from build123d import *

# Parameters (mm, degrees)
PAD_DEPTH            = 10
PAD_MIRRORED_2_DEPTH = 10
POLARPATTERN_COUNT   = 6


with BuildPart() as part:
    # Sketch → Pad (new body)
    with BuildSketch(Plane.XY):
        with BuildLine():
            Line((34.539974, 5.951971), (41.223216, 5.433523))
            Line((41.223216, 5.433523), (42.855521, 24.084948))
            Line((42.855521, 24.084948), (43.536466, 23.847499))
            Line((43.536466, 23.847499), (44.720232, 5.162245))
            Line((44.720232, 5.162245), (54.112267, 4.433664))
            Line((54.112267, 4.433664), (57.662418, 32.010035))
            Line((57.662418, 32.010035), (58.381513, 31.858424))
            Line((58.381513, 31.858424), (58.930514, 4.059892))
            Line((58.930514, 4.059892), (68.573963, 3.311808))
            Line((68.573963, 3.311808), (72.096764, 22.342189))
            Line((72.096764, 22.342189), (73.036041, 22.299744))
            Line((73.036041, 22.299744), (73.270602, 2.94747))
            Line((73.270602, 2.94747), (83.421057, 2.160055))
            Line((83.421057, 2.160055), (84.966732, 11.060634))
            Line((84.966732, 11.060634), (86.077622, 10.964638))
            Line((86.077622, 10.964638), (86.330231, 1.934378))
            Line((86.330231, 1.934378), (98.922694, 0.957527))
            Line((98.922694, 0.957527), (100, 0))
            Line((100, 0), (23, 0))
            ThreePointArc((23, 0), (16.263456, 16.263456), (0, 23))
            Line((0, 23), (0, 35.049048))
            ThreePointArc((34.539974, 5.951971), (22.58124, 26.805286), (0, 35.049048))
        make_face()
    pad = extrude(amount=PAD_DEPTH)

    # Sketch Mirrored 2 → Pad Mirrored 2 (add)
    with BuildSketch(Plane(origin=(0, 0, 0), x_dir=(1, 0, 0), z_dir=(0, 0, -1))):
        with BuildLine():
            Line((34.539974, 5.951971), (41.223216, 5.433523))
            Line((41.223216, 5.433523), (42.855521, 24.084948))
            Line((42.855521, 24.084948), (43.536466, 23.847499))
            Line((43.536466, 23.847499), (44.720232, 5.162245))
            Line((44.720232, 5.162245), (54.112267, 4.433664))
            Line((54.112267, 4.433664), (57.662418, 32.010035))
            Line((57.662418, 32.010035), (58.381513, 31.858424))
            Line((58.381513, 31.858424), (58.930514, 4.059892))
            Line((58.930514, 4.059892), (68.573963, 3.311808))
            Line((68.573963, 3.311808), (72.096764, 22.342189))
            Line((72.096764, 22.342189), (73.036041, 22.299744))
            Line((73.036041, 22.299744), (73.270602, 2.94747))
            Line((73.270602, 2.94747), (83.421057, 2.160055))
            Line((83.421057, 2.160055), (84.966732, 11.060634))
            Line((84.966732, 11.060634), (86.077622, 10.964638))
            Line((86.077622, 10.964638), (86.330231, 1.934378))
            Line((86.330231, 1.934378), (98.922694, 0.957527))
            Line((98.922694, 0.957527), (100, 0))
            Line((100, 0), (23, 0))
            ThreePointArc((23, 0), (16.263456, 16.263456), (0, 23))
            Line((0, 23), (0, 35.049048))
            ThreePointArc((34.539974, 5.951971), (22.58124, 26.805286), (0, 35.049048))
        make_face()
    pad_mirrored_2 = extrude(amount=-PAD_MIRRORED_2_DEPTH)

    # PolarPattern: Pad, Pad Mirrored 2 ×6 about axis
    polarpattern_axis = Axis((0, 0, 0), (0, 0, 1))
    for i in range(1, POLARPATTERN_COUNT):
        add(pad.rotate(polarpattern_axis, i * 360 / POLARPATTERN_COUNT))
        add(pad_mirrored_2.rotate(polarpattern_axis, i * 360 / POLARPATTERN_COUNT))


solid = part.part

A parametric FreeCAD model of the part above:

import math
import FreeCAD as App
import Part
import Sketcher
from FreeCAD import Vector
Q = App.Units.Quantity

doc = App.newDocument("Part")
body = doc.addObject("PartDesign::Body", "Body")

# Sketch on XY plane
sketch1 = body.newObject("Sketcher::SketchObject", "Sketch")
sketch1.AttachmentSupport = (doc.getObject("XY_Plane"), [""])
sketch1.MapMode = "FlatFace"
sketch1.addGeometry(Part.LineSegment(Vector(41.223216, 5.433523, 0), Vector(34.539974, 5.951971, 0)), False)
sketch1.addGeometry(Part.ArcOfCircle(Part.Circle(Vector(0, 0, 0), Vector(0, 0, 1), 35.049048), math.radians(9.777257), math.radians(90)), False)
sketch1.addGeometry(Part.LineSegment(Vector(0, 35.049048, 0), Vector(0, 23, 0)), False)
sketch1.addGeometry(Part.ArcOfCircle(Part.Circle(Vector(0, 0, 0), Vector(0, 0, 1), 23), math.radians(0), math.radians(90)), False)
sketch1.addGeometry(Part.LineSegment(Vector(23, 0, 0), Vector(100, 0, 0)), False)
sketch1.addGeometry(Part.LineSegment(Vector(100, 0, 0), Vector(98.922694, 0.957527, 0)), False)
sketch1.addGeometry(Part.LineSegment(Vector(98.922694, 0.957527, 0), Vector(86.330231, 1.934378, 0)), False)
sketch1.addGeometry(Part.LineSegment(Vector(86.330231, 1.934378, 0), Vector(86.077622, 10.964638, 0)), False)
sketch1.addGeometry(Part.LineSegment(Vector(86.077622, 10.964638, 0), Vector(84.966732, 11.060634, 0)), False)
sketch1.addGeometry(Part.LineSegment(Vector(84.966732, 11.060634, 0), Vector(83.421057, 2.160055, 0)), False)
sketch1.addGeometry(Part.LineSegment(Vector(83.421057, 2.160055, 0), Vector(73.270602, 2.94747, 0)), False)
sketch1.addGeometry(Part.LineSegment(Vector(73.270602, 2.94747, 0), Vector(73.036041, 22.299744, 0)), False)
sketch1.addGeometry(Part.LineSegment(Vector(73.036041, 22.299744, 0), Vector(72.096764, 22.342189, 0)), False)
sketch1.addGeometry(Part.LineSegment(Vector(72.096764, 22.342189, 0), Vector(68.573963, 3.311808, 0)), False)
sketch1.addGeometry(Part.LineSegment(Vector(68.573963, 3.311808, 0), Vector(58.930514, 4.059892, 0)), False)
sketch1.addGeometry(Part.LineSegment(Vector(58.930514, 4.059892, 0), Vector(58.381513, 31.858424, 0)), False)
sketch1.addGeometry(Part.LineSegment(Vector(58.381513, 31.858424, 0), Vector(57.662418, 32.010035, 0)), False)
sketch1.addGeometry(Part.LineSegment(Vector(57.662418, 32.010035, 0), Vector(54.112267, 4.433664, 0)), False)
sketch1.addGeometry(Part.LineSegment(Vector(54.112267, 4.433664, 0), Vector(44.720232, 5.162245, 0)), False)
sketch1.addGeometry(Part.LineSegment(Vector(44.720232, 5.162245, 0), Vector(43.536466, 23.847499, 0)), False)
sketch1.addGeometry(Part.LineSegment(Vector(43.536466, 23.847499, 0), Vector(42.855521, 24.084948, 0)), False)
sketch1.addGeometry(Part.LineSegment(Vector(42.855521, 24.084948, 0), Vector(41.223216, 5.433523, 0)), False)
sketch1.addConstraint(Sketcher.Constraint("Coincident", 0, 2, 1, 1))
sketch1.addConstraint(Sketcher.Constraint("Coincident", 1, 2, 2, 1))
sketch1.addConstraint(Sketcher.Constraint("Coincident", 2, 2, 3, 2))
sketch1.addConstraint(Sketcher.Constraint("Coincident", 3, 1, 4, 1))
sketch1.addConstraint(Sketcher.Constraint("Coincident", 4, 2, 5, 1))
sketch1.addConstraint(Sketcher.Constraint("Coincident", 5, 2, 6, 1))
sketch1.addConstraint(Sketcher.Constraint("Coincident", 6, 2, 7, 1))
sketch1.addConstraint(Sketcher.Constraint("Coincident", 7, 2, 8, 1))
sketch1.addConstraint(Sketcher.Constraint("Coincident", 8, 2, 9, 1))
sketch1.addConstraint(Sketcher.Constraint("Coincident", 9, 2, 10, 1))
sketch1.addConstraint(Sketcher.Constraint("Coincident", 10, 2, 11, 1))
sketch1.addConstraint(Sketcher.Constraint("Coincident", 11, 2, 12, 1))
sketch1.addConstraint(Sketcher.Constraint("Coincident", 12, 2, 13, 1))
sketch1.addConstraint(Sketcher.Constraint("Coincident", 13, 2, 14, 1))
sketch1.addConstraint(Sketcher.Constraint("Coincident", 14, 2, 15, 1))
sketch1.addConstraint(Sketcher.Constraint("Coincident", 15, 2, 16, 1))
sketch1.addConstraint(Sketcher.Constraint("Coincident", 16, 2, 17, 1))
sketch1.addConstraint(Sketcher.Constraint("Coincident", 17, 2, 18, 1))
sketch1.addConstraint(Sketcher.Constraint("Coincident", 18, 2, 19, 1))
sketch1.addConstraint(Sketcher.Constraint("Coincident", 19, 2, 20, 1))
sketch1.addConstraint(Sketcher.Constraint("Coincident", 20, 2, 21, 1))
sketch1.addConstraint(Sketcher.Constraint("Coincident", 21, 2, 0, 1))
sketch1.addConstraint(Sketcher.Constraint("Vertical", 2))
sketch1.addConstraint(Sketcher.Constraint("Horizontal", 4))
sketch1.addConstraint(Sketcher.Constraint("Coincident", 1, 3, -1, 1))
sketch1.addConstraint(Sketcher.Constraint("Coincident", 3, 3, -1, 1))
sketch1.addConstraint(Sketcher.Constraint("PointOnObject", 1, 2, -2))
sketch1.addConstraint(Sketcher.Constraint("PointOnObject", 3, 1, -1))
sketch1.addConstraint(Sketcher.Constraint("Parallel", 0, 6))
sketch1.addConstraint(Sketcher.Constraint("Parallel", 6, 10))
sketch1.addConstraint(Sketcher.Constraint("Parallel", 10, 14))
sketch1.addConstraint(Sketcher.Constraint("Parallel", 14, 18))
sketch1.addConstraint(Sketcher.Constraint("Equal", 7, 9))
sketch1.addConstraint(Sketcher.Constraint("Equal", 11, 13))
sketch1.addConstraint(Sketcher.Constraint("Equal", 15, 17))
sketch1.addConstraint(Sketcher.Constraint("Equal", 19, 21))
sketch1.addConstraint(Sketcher.Constraint("Radius", 3, Q("23 mm")))
sketch1.addConstraint(Sketcher.Constraint("DistanceX", 4, 1, 4, 2, Q("77 mm")))
sketch1.addConstraint(Sketcher.Constraint("Radius", 1, Q("35.049048 mm")))
sketch1.addConstraint(Sketcher.Constraint("DistanceX", 15, 2, 14, 2, Q("0.549001 mm")))
sketch1.addConstraint(Sketcher.Constraint("DistanceX", -1, 1, 10, 2, Q("73.270602 mm")))
sketch1.addConstraint(Sketcher.Constraint("DistanceY", -1, 1, 19, 2, Q("23.847499 mm")))
sketch1.addConstraint(Sketcher.Constraint("DistanceX", 8, 2, 6, 2, Q("1.363499 mm")))
sketch1.addConstraint(Sketcher.Constraint("DistanceX", 19, 2, 17, 2, Q("10.575801 mm")))
sketch1.addConstraint(Sketcher.Constraint("DistanceX", 21, 2, 14, 2, Q("17.707298 mm")))
sketch1.addConstraint(Sketcher.Constraint("Distance", 0, Q("6.703321 mm")))
sketch1.addConstraint(Sketcher.Constraint("Distance", 8, Q("1.11503 mm")))
sketch1.addConstraint(Sketcher.Constraint("Distance", 10, Q("10.180951 mm")))
sketch1.addConstraint(Sketcher.Constraint("Distance", 14, Q("9.672422 mm")))
sketch1.addConstraint(Sketcher.Constraint("DistanceY", -1, 1, 0, 2, Q("5.951971 mm")))
sketch1.addConstraint(Sketcher.Constraint("DistanceX", -1, 1, 6, 2, Q("86.330231 mm")))
sketch1.addConstraint(Sketcher.Constraint("DistanceY", -1, 1, 7, 2, Q("10.964638 mm")))
sketch1.addConstraint(Sketcher.Constraint("DistanceY", -1, 1, 10, 2, Q("2.94747 mm")))
sketch1.addConstraint(Sketcher.Constraint("DistanceX", -1, 1, 11, 2, Q("73.036041 mm")))
sketch1.addConstraint(Sketcher.Constraint("DistanceY", -1, 1, 12, 2, Q("22.342189 mm")))
sketch1.addConstraint(Sketcher.Constraint("DistanceY", -1, 1, 13, 2, Q("3.311808 mm")))
sketch1.addConstraint(Sketcher.Constraint("DistanceY", -1, 1, 14, 2, Q("4.059892 mm")))
sketch1.addConstraint(Sketcher.Constraint("DistanceX", -1, 1, 16, 2, Q("57.662418 mm")))
sketch1.addConstraint(Sketcher.Constraint("DistanceX", -1, 1, 20, 2, Q("42.855521 mm")))
sketch1.addConstraint(Sketcher.Constraint("DistanceY", -1, 1, 20, 2, Q("24.084948 mm")))
sketch1.addConstraint(Sketcher.Constraint("DistanceX", 0, 2, 5, 2, Q("64.38272 mm")))
sketch1.addConstraint(Sketcher.Constraint("DistanceX", 7, 2, 6, 2, Q("0.252609 mm")))
sketch1.addConstraint(Sketcher.Constraint("DistanceY", 8, 2, 11, 2, Q("11.23911 mm")))
sketch1.addConstraint(Sketcher.Constraint("DistanceY", 11, 2, 15, 2, Q("9.55868 mm")))
sketch1.addConstraint(Sketcher.Constraint("DistanceY", 15, 2, 16, 2, Q("0.151611 mm")))
sketch1.addConstraint(Sketcher.Constraint("DistanceY", 17, 2, 18, 2, Q("0.728581 mm")))
pad1 = body.newObject("PartDesign::Pad", "Pad")
pad1.Profile = sketch1
pad1.Length = 10

# Sketch on XY plane
sketch2 = body.newObject("Sketcher::SketchObject", "Sketch001")
sketch2.AttachmentSupport = (doc.getObject("XY_Plane"), [""])
sketch2.MapMode = "FlatFace"
sketch2.addGeometry(Part.LineSegment(Vector(41.223216, -5.433523, 0), Vector(34.539974, -5.951971, 0)), False)
sketch2.addGeometry(Part.ArcOfCircle(Part.Circle(Vector(0, 0, 0), Vector(0, 0, 1), 35.049048), math.radians(-90), math.radians(-9.777257)), False)
sketch2.addGeometry(Part.LineSegment(Vector(0, -35.049048, 0), Vector(0, -23, 0)), False)
sketch2.addGeometry(Part.ArcOfCircle(Part.Circle(Vector(0, 0, 0), Vector(0, 0, 1), 23), math.radians(-90), math.radians(0)), False)
sketch2.addGeometry(Part.LineSegment(Vector(23, 0, 0), Vector(100, 0, 0)), False)
sketch2.addGeometry(Part.LineSegment(Vector(100, 0, 0), Vector(98.922694, -0.957527, 0)), False)
sketch2.addGeometry(Part.LineSegment(Vector(98.922694, -0.957527, 0), Vector(86.330231, -1.934378, 0)), False)
sketch2.addGeometry(Part.LineSegment(Vector(86.330231, -1.934378, 0), Vector(86.077622, -10.964638, 0)), False)
sketch2.addGeometry(Part.LineSegment(Vector(86.077622, -10.964638, 0), Vector(84.966732, -11.060634, 0)), False)
sketch2.addGeometry(Part.LineSegment(Vector(84.966732, -11.060634, 0), Vector(83.421057, -2.160055, 0)), False)
sketch2.addGeometry(Part.LineSegment(Vector(83.421057, -2.160055, 0), Vector(73.270602, -2.94747, 0)), False)
sketch2.addGeometry(Part.LineSegment(Vector(73.270602, -2.94747, 0), Vector(73.036041, -22.299744, 0)), False)
sketch2.addGeometry(Part.LineSegment(Vector(73.036041, -22.299744, 0), Vector(72.096764, -22.342189, 0)), False)
sketch2.addGeometry(Part.LineSegment(Vector(72.096764, -22.342189, 0), Vector(68.573963, -3.311808, 0)), False)
sketch2.addGeometry(Part.LineSegment(Vector(68.573963, -3.311808, 0), Vector(58.930514, -4.059892, 0)), False)
sketch2.addGeometry(Part.LineSegment(Vector(58.930514, -4.059892, 0), Vector(58.381513, -31.858424, 0)), False)
sketch2.addGeometry(Part.LineSegment(Vector(58.381513, -31.858424, 0), Vector(57.662418, -32.010035, 0)), False)
sketch2.addGeometry(Part.LineSegment(Vector(57.662418, -32.010035, 0), Vector(54.112267, -4.433664, 0)), False)
sketch2.addGeometry(Part.LineSegment(Vector(54.112267, -4.433664, 0), Vector(44.720232, -5.162245, 0)), False)
sketch2.addGeometry(Part.LineSegment(Vector(44.720232, -5.162245, 0), Vector(43.536466, -23.847499, 0)), False)
sketch2.addGeometry(Part.LineSegment(Vector(43.536466, -23.847499, 0), Vector(42.855521, -24.084948, 0)), False)
sketch2.addGeometry(Part.LineSegment(Vector(42.855521, -24.084948, 0), Vector(41.223216, -5.433523, 0)), False)
sketch2.addConstraint(Sketcher.Constraint("Coincident", 0, 2, 1, 2))
sketch2.addConstraint(Sketcher.Constraint("Coincident", 1, 1, 2, 1))
sketch2.addConstraint(Sketcher.Constraint("Coincident", 2, 2, 3, 1))
sketch2.addConstraint(Sketcher.Constraint("Coincident", 3, 2, 4, 1))
sketch2.addConstraint(Sketcher.Constraint("Coincident", 4, 2, 5, 1))
sketch2.addConstraint(Sketcher.Constraint("Coincident", 5, 2, 6, 1))
sketch2.addConstraint(Sketcher.Constraint("Coincident", 6, 2, 7, 1))
sketch2.addConstraint(Sketcher.Constraint("Coincident", 7, 2, 8, 1))
sketch2.addConstraint(Sketcher.Constraint("Coincident", 8, 2, 9, 1))
sketch2.addConstraint(Sketcher.Constraint("Coincident", 9, 2, 10, 1))
sketch2.addConstraint(Sketcher.Constraint("Coincident", 10, 2, 11, 1))
sketch2.addConstraint(Sketcher.Constraint("Coincident", 11, 2, 12, 1))
sketch2.addConstraint(Sketcher.Constraint("Coincident", 12, 2, 13, 1))
sketch2.addConstraint(Sketcher.Constraint("Coincident", 13, 2, 14, 1))
sketch2.addConstraint(Sketcher.Constraint("Coincident", 14, 2, 15, 1))
sketch2.addConstraint(Sketcher.Constraint("Coincident", 15, 2, 16, 1))
sketch2.addConstraint(Sketcher.Constraint("Coincident", 16, 2, 17, 1))
sketch2.addConstraint(Sketcher.Constraint("Coincident", 17, 2, 18, 1))
sketch2.addConstraint(Sketcher.Constraint("Coincident", 18, 2, 19, 1))
sketch2.addConstraint(Sketcher.Constraint("Coincident", 19, 2, 20, 1))
sketch2.addConstraint(Sketcher.Constraint("Coincident", 20, 2, 21, 1))
sketch2.addConstraint(Sketcher.Constraint("Coincident", 21, 2, 0, 1))
sketch2.addConstraint(Sketcher.Constraint("Vertical", 2))
sketch2.addConstraint(Sketcher.Constraint("Horizontal", 4))
sketch2.addConstraint(Sketcher.Constraint("Coincident", 1, 3, -1, 1))
sketch2.addConstraint(Sketcher.Constraint("Coincident", 3, 3, -1, 1))
sketch2.addConstraint(Sketcher.Constraint("PointOnObject", 1, 1, -2))
sketch2.addConstraint(Sketcher.Constraint("PointOnObject", 3, 2, -1))
sketch2.addConstraint(Sketcher.Constraint("Parallel", 0, 6))
sketch2.addConstraint(Sketcher.Constraint("Parallel", 6, 10))
sketch2.addConstraint(Sketcher.Constraint("Parallel", 10, 14))
sketch2.addConstraint(Sketcher.Constraint("Parallel", 14, 18))
sketch2.addConstraint(Sketcher.Constraint("Equal", 7, 9))
sketch2.addConstraint(Sketcher.Constraint("Equal", 11, 13))
sketch2.addConstraint(Sketcher.Constraint("Equal", 15, 17))
sketch2.addConstraint(Sketcher.Constraint("Equal", 19, 21))
sketch2.addConstraint(Sketcher.Constraint("Radius", 3, Q("23 mm")))
sketch2.addConstraint(Sketcher.Constraint("DistanceX", 4, 1, 4, 2, Q("77 mm")))
sketch2.addConstraint(Sketcher.Constraint("Radius", 1, Q("35.049048 mm")))
sketch2.addConstraint(Sketcher.Constraint("DistanceX", 15, 2, 14, 2, Q("0.549001 mm")))
sketch2.addConstraint(Sketcher.Constraint("DistanceX", -1, 1, 10, 2, Q("73.270602 mm")))
sketch2.addConstraint(Sketcher.Constraint("DistanceY", 19, 2, -1, 1, Q("23.847499 mm")))
sketch2.addConstraint(Sketcher.Constraint("DistanceX", 8, 2, 6, 2, Q("1.363499 mm")))
sketch2.addConstraint(Sketcher.Constraint("DistanceX", 19, 2, 17, 2, Q("10.575801 mm")))
sketch2.addConstraint(Sketcher.Constraint("DistanceX", 21, 2, 14, 2, Q("17.707298 mm")))
sketch2.addConstraint(Sketcher.Constraint("Distance", 0, Q("6.703321 mm")))
sketch2.addConstraint(Sketcher.Constraint("Distance", 8, Q("1.11503 mm")))
sketch2.addConstraint(Sketcher.Constraint("Distance", 10, Q("10.180951 mm")))
sketch2.addConstraint(Sketcher.Constraint("Distance", 14, Q("9.672422 mm")))
sketch2.addConstraint(Sketcher.Constraint("DistanceY", 0, 2, -1, 1, Q("5.951971 mm")))
sketch2.addConstraint(Sketcher.Constraint("DistanceX", -1, 1, 6, 2, Q("86.330231 mm")))
sketch2.addConstraint(Sketcher.Constraint("DistanceY", 7, 2, -1, 1, Q("10.964638 mm")))
sketch2.addConstraint(Sketcher.Constraint("DistanceY", 10, 2, -1, 1, Q("2.94747 mm")))
sketch2.addConstraint(Sketcher.Constraint("DistanceX", -1, 1, 11, 2, Q("73.036041 mm")))
sketch2.addConstraint(Sketcher.Constraint("DistanceY", 12, 2, -1, 1, Q("22.342189 mm")))
sketch2.addConstraint(Sketcher.Constraint("DistanceY", 13, 2, -1, 1, Q("3.311808 mm")))
sketch2.addConstraint(Sketcher.Constraint("DistanceY", 14, 2, -1, 1, Q("4.059892 mm")))
sketch2.addConstraint(Sketcher.Constraint("DistanceX", -1, 1, 16, 2, Q("57.662418 mm")))
sketch2.addConstraint(Sketcher.Constraint("DistanceX", -1, 1, 20, 2, Q("42.855521 mm")))
sketch2.addConstraint(Sketcher.Constraint("DistanceY", 20, 2, -1, 1, Q("24.084948 mm")))
sketch2.addConstraint(Sketcher.Constraint("DistanceX", 0, 2, 5, 2, Q("64.38272 mm")))
sketch2.addConstraint(Sketcher.Constraint("DistanceX", 7, 2, 6, 2, Q("0.252609 mm")))
sketch2.addConstraint(Sketcher.Constraint("DistanceY", 11, 2, 8, 2, Q("11.23911 mm")))
sketch2.addConstraint(Sketcher.Constraint("DistanceY", 15, 2, 11, 2, Q("9.55868 mm")))
sketch2.addConstraint(Sketcher.Constraint("DistanceY", 16, 2, 15, 2, Q("0.151611 mm")))
sketch2.addConstraint(Sketcher.Constraint("DistanceY", 18, 2, 17, 2, Q("0.728581 mm")))
pad2 = body.newObject("PartDesign::Pad", "Pad001")
pad2.Profile = sketch2
pad2.Length = 10
doc.recompute()

polarpattern = body.newObject("PartDesign::PolarPattern", "PolarPattern")
polarpattern.Originals = [pad1, pad2]
polarpattern.Axis = (doc.getObject("Z_Axis"), [""])
polarpattern.Angle = 360
polarpattern.Occurrences = 6
body.Tip = polarpattern

doc.recompute()
